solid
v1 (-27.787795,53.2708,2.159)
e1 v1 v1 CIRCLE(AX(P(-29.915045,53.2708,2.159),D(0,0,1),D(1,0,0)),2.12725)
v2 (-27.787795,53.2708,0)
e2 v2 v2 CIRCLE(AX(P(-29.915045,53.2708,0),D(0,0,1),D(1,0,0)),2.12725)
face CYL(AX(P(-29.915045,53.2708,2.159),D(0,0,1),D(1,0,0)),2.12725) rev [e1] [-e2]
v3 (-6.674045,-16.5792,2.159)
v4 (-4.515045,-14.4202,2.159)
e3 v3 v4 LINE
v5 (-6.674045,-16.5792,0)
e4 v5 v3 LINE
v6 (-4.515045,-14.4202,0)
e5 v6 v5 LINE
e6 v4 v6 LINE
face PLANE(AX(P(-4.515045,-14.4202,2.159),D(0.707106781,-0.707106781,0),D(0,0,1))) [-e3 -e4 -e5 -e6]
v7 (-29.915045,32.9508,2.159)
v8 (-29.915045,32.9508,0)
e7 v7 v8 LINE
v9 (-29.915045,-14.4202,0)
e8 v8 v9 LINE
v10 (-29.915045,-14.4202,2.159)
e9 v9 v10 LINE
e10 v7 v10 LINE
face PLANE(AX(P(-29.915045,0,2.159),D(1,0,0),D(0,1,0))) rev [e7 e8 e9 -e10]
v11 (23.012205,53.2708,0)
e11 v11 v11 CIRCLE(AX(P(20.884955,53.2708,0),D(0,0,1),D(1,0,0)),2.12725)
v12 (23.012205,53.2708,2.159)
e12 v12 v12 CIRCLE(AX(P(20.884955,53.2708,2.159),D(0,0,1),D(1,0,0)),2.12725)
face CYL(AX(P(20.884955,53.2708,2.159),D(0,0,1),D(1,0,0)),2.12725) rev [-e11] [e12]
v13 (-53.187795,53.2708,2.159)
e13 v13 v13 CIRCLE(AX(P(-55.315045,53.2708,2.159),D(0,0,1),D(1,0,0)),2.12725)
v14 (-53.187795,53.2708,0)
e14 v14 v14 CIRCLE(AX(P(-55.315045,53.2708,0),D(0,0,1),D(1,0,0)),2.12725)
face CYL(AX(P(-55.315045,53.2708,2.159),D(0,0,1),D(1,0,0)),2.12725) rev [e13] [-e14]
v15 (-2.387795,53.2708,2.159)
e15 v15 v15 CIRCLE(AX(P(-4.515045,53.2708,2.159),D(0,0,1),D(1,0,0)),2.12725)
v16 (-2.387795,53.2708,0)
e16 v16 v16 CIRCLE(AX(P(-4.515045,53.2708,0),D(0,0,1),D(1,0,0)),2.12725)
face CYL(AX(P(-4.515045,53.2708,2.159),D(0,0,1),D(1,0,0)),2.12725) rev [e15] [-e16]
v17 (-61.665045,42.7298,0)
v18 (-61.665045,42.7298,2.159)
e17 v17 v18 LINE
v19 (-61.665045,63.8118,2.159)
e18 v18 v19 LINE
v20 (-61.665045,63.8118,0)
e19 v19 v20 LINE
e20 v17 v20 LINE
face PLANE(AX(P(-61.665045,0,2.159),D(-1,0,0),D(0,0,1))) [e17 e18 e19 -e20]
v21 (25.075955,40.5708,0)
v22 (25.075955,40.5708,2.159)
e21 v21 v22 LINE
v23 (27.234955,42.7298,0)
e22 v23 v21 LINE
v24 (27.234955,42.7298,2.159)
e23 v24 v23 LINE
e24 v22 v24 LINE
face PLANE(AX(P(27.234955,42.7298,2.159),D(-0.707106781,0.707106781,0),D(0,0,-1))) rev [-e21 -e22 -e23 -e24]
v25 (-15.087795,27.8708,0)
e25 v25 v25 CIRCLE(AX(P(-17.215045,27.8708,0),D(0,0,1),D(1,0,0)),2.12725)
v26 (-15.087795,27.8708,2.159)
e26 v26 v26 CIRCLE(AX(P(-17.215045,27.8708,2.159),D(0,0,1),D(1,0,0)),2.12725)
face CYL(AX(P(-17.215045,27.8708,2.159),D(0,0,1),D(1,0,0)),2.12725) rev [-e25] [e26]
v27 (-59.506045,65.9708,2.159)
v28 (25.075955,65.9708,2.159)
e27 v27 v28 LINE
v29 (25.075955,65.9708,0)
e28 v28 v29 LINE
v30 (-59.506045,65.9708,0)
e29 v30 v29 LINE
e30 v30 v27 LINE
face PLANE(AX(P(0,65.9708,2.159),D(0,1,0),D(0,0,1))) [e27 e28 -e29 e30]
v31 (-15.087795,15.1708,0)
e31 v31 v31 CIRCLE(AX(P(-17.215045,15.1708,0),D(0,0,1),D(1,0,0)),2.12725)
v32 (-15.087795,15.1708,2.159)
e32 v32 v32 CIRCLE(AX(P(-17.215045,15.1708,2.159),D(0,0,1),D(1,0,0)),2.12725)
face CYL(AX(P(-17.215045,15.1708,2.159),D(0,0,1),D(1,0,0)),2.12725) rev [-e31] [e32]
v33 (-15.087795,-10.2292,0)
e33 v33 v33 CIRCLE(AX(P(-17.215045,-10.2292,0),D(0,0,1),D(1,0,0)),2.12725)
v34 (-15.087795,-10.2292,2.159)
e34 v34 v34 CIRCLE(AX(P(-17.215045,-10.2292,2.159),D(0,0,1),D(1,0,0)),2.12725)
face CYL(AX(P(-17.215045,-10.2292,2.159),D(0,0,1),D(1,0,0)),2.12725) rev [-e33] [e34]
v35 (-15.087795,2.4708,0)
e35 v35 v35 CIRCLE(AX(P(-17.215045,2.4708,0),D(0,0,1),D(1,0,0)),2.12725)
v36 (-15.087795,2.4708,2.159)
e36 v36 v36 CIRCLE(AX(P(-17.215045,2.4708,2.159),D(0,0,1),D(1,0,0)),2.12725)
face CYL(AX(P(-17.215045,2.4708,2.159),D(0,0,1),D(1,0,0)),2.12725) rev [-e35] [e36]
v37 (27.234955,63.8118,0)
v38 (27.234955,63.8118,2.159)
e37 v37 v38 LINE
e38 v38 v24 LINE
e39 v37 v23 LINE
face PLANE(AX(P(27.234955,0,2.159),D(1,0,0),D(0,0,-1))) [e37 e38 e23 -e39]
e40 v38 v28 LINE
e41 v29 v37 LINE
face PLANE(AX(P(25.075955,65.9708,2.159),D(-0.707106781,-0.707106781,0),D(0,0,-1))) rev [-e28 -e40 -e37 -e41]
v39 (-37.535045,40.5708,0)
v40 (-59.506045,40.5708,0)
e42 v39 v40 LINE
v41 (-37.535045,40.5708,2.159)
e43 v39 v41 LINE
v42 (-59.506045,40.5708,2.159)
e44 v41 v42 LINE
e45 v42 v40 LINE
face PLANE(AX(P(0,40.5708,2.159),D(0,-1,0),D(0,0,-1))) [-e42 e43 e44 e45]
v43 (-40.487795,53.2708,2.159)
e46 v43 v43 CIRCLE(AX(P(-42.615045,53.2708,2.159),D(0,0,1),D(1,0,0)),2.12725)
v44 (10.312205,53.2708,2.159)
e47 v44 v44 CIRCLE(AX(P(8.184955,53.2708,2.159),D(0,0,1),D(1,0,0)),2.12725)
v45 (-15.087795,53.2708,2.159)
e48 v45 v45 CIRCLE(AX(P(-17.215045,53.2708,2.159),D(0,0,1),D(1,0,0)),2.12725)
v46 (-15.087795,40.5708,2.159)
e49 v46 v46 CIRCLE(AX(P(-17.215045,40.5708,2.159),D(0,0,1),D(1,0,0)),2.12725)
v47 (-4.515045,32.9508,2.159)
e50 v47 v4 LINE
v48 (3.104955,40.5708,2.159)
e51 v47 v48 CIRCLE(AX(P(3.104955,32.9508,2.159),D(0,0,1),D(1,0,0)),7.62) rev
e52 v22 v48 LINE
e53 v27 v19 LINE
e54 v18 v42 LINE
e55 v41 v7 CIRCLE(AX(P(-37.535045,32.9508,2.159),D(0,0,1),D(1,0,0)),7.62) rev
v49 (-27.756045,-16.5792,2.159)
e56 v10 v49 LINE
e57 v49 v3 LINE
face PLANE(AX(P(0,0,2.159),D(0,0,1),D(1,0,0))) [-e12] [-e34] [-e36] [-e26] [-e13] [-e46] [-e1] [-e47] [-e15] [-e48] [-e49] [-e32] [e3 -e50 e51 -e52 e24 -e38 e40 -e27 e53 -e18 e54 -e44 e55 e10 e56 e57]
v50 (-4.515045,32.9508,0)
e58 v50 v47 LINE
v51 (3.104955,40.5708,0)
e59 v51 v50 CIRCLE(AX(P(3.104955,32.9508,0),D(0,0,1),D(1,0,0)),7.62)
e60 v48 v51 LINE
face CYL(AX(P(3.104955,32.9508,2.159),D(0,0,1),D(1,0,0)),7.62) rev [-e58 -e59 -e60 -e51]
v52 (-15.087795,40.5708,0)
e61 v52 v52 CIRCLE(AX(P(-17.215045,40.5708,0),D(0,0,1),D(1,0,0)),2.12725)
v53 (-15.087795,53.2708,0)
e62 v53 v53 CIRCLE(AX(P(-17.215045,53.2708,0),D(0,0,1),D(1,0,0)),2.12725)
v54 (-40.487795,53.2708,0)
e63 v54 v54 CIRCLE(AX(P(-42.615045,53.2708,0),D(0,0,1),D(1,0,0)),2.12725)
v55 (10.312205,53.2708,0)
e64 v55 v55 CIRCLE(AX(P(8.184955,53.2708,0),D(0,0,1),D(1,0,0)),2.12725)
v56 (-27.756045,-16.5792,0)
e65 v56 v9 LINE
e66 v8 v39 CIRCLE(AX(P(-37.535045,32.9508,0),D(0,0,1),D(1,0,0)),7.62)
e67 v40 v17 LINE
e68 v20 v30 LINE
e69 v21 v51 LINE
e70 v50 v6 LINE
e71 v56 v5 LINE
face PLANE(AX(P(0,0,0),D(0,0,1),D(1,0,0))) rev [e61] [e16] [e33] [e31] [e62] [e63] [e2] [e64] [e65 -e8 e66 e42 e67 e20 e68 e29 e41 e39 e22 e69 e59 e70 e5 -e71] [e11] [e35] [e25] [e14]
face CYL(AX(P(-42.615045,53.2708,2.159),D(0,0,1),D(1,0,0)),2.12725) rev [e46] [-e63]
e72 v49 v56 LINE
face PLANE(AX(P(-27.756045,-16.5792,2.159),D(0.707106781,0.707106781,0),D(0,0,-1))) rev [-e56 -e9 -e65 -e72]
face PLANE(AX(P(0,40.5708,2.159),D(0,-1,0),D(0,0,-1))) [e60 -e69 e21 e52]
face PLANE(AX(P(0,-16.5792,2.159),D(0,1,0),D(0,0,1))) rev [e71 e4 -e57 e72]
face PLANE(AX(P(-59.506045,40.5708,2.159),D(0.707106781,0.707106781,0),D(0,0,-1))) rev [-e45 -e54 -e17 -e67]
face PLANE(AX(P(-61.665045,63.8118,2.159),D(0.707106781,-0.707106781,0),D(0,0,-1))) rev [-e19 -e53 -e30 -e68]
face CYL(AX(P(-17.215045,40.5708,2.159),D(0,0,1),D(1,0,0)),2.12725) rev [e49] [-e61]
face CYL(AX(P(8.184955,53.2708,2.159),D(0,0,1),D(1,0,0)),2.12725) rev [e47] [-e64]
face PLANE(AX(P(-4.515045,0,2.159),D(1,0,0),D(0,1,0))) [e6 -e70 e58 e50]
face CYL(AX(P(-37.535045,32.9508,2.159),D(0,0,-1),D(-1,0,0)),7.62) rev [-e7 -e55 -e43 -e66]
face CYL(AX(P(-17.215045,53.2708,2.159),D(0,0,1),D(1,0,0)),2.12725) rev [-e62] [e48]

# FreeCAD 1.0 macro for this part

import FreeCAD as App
import Part
import Sketcher
from FreeCAD import Vector
Q = App.Units.Quantity


def edges_at(feature, points):
    """Names of the edges that pass closest to the given points."""
    edges = feature.Shape.Edges
    near = lambda p: min(range(len(edges)), key=lambda i: edges[i].distToShape(Part.Vertex(*p))[0])
    return sorted({f"Edge{near(p) + 1}" for p in points})


def add_polygon(sketch, points):
    """Adds a closed chain of lines whose ends are joined by coincident constraints."""
    first, n = sketch.GeometryCount, len(points)
    for a, b in zip(points, points[1:] + points[:1]):
        sketch.addGeometry(Part.LineSegment(App.Vector(*a, 0), App.Vector(*b, 0)), False)
    for i in range(n):
        sketch.addConstraint(Sketcher.Constraint("Coincident", first + i, 2, first + (i + 1) % n, 1))

doc = App.newDocument("Part")
params = doc.addObject("Spreadsheet::Sheet", "Params")
for row, (alias, value) in enumerate([
    ("sketch1_width", "1 in"),
    ("sketch1_width2", "3.5 in"),
    ("sketch1_height", "2.25 in"),
    ("pad1_length", "0.085 in"),
    ("fillet_radius", "0.3 in"),
    ("chamfer_size", "0.085 in"),
    ("hole_diameter", "0.1675 in"),
], start=1):
    params.set(f"A{row}", alias)
    params.set(f"B{row}", "=" + value)
    params.setAlias(f"B{row}", alias)

body = doc.addObject("PartDesign::Body", "Body")

# Sketch on XY plane
sketch1 = body.newObject("Sketcher::SketchObject", "Sketch")
sketch1.AttachmentSupport = (doc.getObject("XY_Plane"), [""])
sketch1.MapMode = "FlatFace"
add_polygon(sketch1, [(-62, 41), (-30, 41), (-30, -17), (-5, -17), (-5, 41), (27, 41), (27, 66), (-62, 66)])  # lines 0-7
sketch1.addConstraint([
    Sketcher.Constraint("Horizontal", 0),
    Sketcher.Constraint("Vertical", 1),
    Sketcher.Constraint("Horizontal", 2),
    Sketcher.Constraint("Vertical", 3),
    Sketcher.Constraint("Horizontal", 4),
    Sketcher.Constraint("Vertical", 5),
    Sketcher.Constraint("Horizontal", 6),
    Sketcher.Constraint("Vertical", 7),
    Sketcher.Constraint("Horizontal", 0, 2, 3, 2),
    Sketcher.Constraint("Equal", 0, 4),
    Sketcher.Constraint("Equal", 2, 5),
    Sketcher.Constraint("DistanceX", 2, 1, 2, 2, Q("1 in")),
    Sketcher.Constraint("DistanceX", 6, 2, 6, 1, Q("3.5 in")),
    Sketcher.Constraint("DistanceY", 1, 2, 1, 1, Q("2.25 in")),
    Sketcher.Constraint("DistanceY", -1, 1, 0, 2, 40.5708),
    Sketcher.Constraint("DistanceX", 0, 2, -1, 1, 29.915045),
])
sketch1.setExpression("Constraints[19]", "Params.sketch1_width")
sketch1.setExpression("Constraints[20]", "Params.sketch1_width2")
sketch1.setExpression("Constraints[21]", "Params.sketch1_height")
pad1 = body.newObject("PartDesign::Pad", "Pad")
pad1.Profile = sketch1
pad1.setExpression("Length", "Params.pad1_length")
doc.recompute()

fillet = body.newObject("PartDesign::Fillet", "Fillet")
fillet.Base = (pad1, edges_at(pad1, [(-4.515, 40.571, 1.079), (-29.915, 40.571, 1.079)]))
fillet.setExpression("Radius", "Params.fillet_radius")
doc.recompute()

chamfer = body.newObject("PartDesign::Chamfer", "Chamfer")
chamfer.Base = (fillet, edges_at(fillet, [
    (-4.515, -16.579, 1.079),
    (-29.915, -16.579, 1.079),
    (-61.665, 40.571, 1.079),
    (-61.665, 65.971, 1.079),
    (27.235, 65.971, 1.079),
    (27.235, 40.571, 1.079),
]))
chamfer.setExpression("Size", "Params.chamfer_size")

# Sketch on XY plane
sketch2 = body.newObject("Sketcher::SketchObject", "Sketch001")
sketch2.AttachmentSupport = (doc.getObject("XY_Plane"), [""])
sketch2.MapMode = "FlatFace"
sketch2.AttachmentOffset = App.Placement(Vector(0, 0, 0.085 * 25.4), App.Rotation())
sketch2.addGeometry([
    Part.Circle(Vector(-55.3, 53.3, 0), Vector(0, 0, 1), 2.1),  # 0
    Part.Circle(Vector(-42.6, 53.3, 0), Vector(0, 0, 1), 2.1),  # 1
    Part.Circle(Vector(-29.9, 53.3, 0), Vector(0, 0, 1), 2.1),  # 2
    Part.Circle(Vector(-17.2, 53.3, 0), Vector(0, 0, 1), 2.1),  # 3
    Part.Circle(Vector(-4.5, 53.3, 0), Vector(0, 0, 1), 2.1),  # 4
    Part.Circle(Vector(8.2, 53.3, 0), Vector(0, 0, 1), 2.1),  # 5
    Part.Circle(Vector(20.9, 53.3, 0), Vector(0, 0, 1), 2.1),  # 6
    Part.Circle(Vector(-17.2, 40.6, 0), Vector(0, 0, 1), 2.1),  # 7
    Part.Circle(Vector(-17.2, 27.9, 0), Vector(0, 0, 1), 2.1),  # 8
    Part.Circle(Vector(-17.2, 15.2, 0), Vector(0, 0, 1), 2.1),  # 9
    Part.Circle(Vector(-17.2, 2.5, 0), Vector(0, 0, 1), 2.1),  # 10
    Part.Circle(Vector(-17.2, -10.2, 0), Vector(0, 0, 1), 2.1),  # 11
], False)
sketch2.addConstraint([
    Sketcher.Constraint("Equal", 0, 1),
    Sketcher.Constraint("Equal", 1, 2),
    Sketcher.Constraint("Equal", 2, 3),
    Sketcher.Constraint("Equal", 3, 4),
    Sketcher.Constraint("Equal", 4, 5),
    Sketcher.Constraint("Equal", 5, 6),
    Sketcher.Constraint("Equal", 6, 7),
    Sketcher.Constraint("Equal", 7, 8),
    Sketcher.Constraint("Equal", 8, 9),
    Sketcher.Constraint("Equal", 9, 10),
    Sketcher.Constraint("Equal", 10, 11),
    Sketcher.Constraint("Horizontal", 0, 3, 1, 3),
    Sketcher.Constraint("Horizontal", 1, 3, 2, 3),
    Sketcher.Constraint("Horizontal", 2, 3, 3, 3),
    Sketcher.Constraint("Horizontal", 3, 3, 4, 3),
    Sketcher.Constraint("Horizontal", 4, 3, 5, 3),
    Sketcher.Constraint("Horizontal", 5, 3, 6, 3),
    Sketcher.Constraint("Vertical", 3, 3, 7, 3),
    Sketcher.Constraint("Vertical", 7, 3, 8, 3),
    Sketcher.Constraint("Vertical", 8, 3, 9, 3),
    Sketcher.Constraint("Vertical", 9, 3, 10, 3),
    Sketcher.Constraint("Vertical", 10, 3, 11, 3),
    Sketcher.Constraint("DistanceX", 0, 3, 2, 3, Q("1 in")),
    Sketcher.Constraint("DistanceX", 1, 3, 3, 3, Q("1 in")),
    Sketcher.Constraint("DistanceX", 2, 3, 4, 3, Q("1 in")),
    Sketcher.Constraint("DistanceX", 3, 3, 5, 3, Q("1 in")),
    Sketcher.Constraint("DistanceX", 4, 3, 6, 3, Q("1 in")),
    Sketcher.Constraint("DistanceY", 8, 3, 3, 3, Q("1 in")),
    Sketcher.Constraint("DistanceY", 9, 3, 7, 3, Q("1 in")),
    Sketcher.Constraint("DistanceY", 10, 3, 8, 3, Q("1 in")),
    Sketcher.Constraint("DistanceY", 11, 3, 9, 3, Q("1 in")),
    Sketcher.Constraint("Diameter", 0, Q("0.1675 in")),
    Sketcher.Constraint("DistanceX", 0, 3, 1, 3, Q("0.5 in")),
    Sketcher.Constraint("DistanceY", 7, 3, 3, 3, Q("0.5 in")),
    Sketcher.Constraint("DistanceY", -1, 1, 0, 3, 53.2708),
    Sketcher.Constraint("DistanceX", 0, 3, -1, 1, 55.315045),
])
doc.recompute()
hole = body.newObject("PartDesign::Hole", "Hole")
hole.Profile = sketch2
hole.ThreadType = "None"
hole.setExpression("Diameter", "Params.hole_diameter")
hole.DepthType = "ThroughAll"

doc.recompute()
